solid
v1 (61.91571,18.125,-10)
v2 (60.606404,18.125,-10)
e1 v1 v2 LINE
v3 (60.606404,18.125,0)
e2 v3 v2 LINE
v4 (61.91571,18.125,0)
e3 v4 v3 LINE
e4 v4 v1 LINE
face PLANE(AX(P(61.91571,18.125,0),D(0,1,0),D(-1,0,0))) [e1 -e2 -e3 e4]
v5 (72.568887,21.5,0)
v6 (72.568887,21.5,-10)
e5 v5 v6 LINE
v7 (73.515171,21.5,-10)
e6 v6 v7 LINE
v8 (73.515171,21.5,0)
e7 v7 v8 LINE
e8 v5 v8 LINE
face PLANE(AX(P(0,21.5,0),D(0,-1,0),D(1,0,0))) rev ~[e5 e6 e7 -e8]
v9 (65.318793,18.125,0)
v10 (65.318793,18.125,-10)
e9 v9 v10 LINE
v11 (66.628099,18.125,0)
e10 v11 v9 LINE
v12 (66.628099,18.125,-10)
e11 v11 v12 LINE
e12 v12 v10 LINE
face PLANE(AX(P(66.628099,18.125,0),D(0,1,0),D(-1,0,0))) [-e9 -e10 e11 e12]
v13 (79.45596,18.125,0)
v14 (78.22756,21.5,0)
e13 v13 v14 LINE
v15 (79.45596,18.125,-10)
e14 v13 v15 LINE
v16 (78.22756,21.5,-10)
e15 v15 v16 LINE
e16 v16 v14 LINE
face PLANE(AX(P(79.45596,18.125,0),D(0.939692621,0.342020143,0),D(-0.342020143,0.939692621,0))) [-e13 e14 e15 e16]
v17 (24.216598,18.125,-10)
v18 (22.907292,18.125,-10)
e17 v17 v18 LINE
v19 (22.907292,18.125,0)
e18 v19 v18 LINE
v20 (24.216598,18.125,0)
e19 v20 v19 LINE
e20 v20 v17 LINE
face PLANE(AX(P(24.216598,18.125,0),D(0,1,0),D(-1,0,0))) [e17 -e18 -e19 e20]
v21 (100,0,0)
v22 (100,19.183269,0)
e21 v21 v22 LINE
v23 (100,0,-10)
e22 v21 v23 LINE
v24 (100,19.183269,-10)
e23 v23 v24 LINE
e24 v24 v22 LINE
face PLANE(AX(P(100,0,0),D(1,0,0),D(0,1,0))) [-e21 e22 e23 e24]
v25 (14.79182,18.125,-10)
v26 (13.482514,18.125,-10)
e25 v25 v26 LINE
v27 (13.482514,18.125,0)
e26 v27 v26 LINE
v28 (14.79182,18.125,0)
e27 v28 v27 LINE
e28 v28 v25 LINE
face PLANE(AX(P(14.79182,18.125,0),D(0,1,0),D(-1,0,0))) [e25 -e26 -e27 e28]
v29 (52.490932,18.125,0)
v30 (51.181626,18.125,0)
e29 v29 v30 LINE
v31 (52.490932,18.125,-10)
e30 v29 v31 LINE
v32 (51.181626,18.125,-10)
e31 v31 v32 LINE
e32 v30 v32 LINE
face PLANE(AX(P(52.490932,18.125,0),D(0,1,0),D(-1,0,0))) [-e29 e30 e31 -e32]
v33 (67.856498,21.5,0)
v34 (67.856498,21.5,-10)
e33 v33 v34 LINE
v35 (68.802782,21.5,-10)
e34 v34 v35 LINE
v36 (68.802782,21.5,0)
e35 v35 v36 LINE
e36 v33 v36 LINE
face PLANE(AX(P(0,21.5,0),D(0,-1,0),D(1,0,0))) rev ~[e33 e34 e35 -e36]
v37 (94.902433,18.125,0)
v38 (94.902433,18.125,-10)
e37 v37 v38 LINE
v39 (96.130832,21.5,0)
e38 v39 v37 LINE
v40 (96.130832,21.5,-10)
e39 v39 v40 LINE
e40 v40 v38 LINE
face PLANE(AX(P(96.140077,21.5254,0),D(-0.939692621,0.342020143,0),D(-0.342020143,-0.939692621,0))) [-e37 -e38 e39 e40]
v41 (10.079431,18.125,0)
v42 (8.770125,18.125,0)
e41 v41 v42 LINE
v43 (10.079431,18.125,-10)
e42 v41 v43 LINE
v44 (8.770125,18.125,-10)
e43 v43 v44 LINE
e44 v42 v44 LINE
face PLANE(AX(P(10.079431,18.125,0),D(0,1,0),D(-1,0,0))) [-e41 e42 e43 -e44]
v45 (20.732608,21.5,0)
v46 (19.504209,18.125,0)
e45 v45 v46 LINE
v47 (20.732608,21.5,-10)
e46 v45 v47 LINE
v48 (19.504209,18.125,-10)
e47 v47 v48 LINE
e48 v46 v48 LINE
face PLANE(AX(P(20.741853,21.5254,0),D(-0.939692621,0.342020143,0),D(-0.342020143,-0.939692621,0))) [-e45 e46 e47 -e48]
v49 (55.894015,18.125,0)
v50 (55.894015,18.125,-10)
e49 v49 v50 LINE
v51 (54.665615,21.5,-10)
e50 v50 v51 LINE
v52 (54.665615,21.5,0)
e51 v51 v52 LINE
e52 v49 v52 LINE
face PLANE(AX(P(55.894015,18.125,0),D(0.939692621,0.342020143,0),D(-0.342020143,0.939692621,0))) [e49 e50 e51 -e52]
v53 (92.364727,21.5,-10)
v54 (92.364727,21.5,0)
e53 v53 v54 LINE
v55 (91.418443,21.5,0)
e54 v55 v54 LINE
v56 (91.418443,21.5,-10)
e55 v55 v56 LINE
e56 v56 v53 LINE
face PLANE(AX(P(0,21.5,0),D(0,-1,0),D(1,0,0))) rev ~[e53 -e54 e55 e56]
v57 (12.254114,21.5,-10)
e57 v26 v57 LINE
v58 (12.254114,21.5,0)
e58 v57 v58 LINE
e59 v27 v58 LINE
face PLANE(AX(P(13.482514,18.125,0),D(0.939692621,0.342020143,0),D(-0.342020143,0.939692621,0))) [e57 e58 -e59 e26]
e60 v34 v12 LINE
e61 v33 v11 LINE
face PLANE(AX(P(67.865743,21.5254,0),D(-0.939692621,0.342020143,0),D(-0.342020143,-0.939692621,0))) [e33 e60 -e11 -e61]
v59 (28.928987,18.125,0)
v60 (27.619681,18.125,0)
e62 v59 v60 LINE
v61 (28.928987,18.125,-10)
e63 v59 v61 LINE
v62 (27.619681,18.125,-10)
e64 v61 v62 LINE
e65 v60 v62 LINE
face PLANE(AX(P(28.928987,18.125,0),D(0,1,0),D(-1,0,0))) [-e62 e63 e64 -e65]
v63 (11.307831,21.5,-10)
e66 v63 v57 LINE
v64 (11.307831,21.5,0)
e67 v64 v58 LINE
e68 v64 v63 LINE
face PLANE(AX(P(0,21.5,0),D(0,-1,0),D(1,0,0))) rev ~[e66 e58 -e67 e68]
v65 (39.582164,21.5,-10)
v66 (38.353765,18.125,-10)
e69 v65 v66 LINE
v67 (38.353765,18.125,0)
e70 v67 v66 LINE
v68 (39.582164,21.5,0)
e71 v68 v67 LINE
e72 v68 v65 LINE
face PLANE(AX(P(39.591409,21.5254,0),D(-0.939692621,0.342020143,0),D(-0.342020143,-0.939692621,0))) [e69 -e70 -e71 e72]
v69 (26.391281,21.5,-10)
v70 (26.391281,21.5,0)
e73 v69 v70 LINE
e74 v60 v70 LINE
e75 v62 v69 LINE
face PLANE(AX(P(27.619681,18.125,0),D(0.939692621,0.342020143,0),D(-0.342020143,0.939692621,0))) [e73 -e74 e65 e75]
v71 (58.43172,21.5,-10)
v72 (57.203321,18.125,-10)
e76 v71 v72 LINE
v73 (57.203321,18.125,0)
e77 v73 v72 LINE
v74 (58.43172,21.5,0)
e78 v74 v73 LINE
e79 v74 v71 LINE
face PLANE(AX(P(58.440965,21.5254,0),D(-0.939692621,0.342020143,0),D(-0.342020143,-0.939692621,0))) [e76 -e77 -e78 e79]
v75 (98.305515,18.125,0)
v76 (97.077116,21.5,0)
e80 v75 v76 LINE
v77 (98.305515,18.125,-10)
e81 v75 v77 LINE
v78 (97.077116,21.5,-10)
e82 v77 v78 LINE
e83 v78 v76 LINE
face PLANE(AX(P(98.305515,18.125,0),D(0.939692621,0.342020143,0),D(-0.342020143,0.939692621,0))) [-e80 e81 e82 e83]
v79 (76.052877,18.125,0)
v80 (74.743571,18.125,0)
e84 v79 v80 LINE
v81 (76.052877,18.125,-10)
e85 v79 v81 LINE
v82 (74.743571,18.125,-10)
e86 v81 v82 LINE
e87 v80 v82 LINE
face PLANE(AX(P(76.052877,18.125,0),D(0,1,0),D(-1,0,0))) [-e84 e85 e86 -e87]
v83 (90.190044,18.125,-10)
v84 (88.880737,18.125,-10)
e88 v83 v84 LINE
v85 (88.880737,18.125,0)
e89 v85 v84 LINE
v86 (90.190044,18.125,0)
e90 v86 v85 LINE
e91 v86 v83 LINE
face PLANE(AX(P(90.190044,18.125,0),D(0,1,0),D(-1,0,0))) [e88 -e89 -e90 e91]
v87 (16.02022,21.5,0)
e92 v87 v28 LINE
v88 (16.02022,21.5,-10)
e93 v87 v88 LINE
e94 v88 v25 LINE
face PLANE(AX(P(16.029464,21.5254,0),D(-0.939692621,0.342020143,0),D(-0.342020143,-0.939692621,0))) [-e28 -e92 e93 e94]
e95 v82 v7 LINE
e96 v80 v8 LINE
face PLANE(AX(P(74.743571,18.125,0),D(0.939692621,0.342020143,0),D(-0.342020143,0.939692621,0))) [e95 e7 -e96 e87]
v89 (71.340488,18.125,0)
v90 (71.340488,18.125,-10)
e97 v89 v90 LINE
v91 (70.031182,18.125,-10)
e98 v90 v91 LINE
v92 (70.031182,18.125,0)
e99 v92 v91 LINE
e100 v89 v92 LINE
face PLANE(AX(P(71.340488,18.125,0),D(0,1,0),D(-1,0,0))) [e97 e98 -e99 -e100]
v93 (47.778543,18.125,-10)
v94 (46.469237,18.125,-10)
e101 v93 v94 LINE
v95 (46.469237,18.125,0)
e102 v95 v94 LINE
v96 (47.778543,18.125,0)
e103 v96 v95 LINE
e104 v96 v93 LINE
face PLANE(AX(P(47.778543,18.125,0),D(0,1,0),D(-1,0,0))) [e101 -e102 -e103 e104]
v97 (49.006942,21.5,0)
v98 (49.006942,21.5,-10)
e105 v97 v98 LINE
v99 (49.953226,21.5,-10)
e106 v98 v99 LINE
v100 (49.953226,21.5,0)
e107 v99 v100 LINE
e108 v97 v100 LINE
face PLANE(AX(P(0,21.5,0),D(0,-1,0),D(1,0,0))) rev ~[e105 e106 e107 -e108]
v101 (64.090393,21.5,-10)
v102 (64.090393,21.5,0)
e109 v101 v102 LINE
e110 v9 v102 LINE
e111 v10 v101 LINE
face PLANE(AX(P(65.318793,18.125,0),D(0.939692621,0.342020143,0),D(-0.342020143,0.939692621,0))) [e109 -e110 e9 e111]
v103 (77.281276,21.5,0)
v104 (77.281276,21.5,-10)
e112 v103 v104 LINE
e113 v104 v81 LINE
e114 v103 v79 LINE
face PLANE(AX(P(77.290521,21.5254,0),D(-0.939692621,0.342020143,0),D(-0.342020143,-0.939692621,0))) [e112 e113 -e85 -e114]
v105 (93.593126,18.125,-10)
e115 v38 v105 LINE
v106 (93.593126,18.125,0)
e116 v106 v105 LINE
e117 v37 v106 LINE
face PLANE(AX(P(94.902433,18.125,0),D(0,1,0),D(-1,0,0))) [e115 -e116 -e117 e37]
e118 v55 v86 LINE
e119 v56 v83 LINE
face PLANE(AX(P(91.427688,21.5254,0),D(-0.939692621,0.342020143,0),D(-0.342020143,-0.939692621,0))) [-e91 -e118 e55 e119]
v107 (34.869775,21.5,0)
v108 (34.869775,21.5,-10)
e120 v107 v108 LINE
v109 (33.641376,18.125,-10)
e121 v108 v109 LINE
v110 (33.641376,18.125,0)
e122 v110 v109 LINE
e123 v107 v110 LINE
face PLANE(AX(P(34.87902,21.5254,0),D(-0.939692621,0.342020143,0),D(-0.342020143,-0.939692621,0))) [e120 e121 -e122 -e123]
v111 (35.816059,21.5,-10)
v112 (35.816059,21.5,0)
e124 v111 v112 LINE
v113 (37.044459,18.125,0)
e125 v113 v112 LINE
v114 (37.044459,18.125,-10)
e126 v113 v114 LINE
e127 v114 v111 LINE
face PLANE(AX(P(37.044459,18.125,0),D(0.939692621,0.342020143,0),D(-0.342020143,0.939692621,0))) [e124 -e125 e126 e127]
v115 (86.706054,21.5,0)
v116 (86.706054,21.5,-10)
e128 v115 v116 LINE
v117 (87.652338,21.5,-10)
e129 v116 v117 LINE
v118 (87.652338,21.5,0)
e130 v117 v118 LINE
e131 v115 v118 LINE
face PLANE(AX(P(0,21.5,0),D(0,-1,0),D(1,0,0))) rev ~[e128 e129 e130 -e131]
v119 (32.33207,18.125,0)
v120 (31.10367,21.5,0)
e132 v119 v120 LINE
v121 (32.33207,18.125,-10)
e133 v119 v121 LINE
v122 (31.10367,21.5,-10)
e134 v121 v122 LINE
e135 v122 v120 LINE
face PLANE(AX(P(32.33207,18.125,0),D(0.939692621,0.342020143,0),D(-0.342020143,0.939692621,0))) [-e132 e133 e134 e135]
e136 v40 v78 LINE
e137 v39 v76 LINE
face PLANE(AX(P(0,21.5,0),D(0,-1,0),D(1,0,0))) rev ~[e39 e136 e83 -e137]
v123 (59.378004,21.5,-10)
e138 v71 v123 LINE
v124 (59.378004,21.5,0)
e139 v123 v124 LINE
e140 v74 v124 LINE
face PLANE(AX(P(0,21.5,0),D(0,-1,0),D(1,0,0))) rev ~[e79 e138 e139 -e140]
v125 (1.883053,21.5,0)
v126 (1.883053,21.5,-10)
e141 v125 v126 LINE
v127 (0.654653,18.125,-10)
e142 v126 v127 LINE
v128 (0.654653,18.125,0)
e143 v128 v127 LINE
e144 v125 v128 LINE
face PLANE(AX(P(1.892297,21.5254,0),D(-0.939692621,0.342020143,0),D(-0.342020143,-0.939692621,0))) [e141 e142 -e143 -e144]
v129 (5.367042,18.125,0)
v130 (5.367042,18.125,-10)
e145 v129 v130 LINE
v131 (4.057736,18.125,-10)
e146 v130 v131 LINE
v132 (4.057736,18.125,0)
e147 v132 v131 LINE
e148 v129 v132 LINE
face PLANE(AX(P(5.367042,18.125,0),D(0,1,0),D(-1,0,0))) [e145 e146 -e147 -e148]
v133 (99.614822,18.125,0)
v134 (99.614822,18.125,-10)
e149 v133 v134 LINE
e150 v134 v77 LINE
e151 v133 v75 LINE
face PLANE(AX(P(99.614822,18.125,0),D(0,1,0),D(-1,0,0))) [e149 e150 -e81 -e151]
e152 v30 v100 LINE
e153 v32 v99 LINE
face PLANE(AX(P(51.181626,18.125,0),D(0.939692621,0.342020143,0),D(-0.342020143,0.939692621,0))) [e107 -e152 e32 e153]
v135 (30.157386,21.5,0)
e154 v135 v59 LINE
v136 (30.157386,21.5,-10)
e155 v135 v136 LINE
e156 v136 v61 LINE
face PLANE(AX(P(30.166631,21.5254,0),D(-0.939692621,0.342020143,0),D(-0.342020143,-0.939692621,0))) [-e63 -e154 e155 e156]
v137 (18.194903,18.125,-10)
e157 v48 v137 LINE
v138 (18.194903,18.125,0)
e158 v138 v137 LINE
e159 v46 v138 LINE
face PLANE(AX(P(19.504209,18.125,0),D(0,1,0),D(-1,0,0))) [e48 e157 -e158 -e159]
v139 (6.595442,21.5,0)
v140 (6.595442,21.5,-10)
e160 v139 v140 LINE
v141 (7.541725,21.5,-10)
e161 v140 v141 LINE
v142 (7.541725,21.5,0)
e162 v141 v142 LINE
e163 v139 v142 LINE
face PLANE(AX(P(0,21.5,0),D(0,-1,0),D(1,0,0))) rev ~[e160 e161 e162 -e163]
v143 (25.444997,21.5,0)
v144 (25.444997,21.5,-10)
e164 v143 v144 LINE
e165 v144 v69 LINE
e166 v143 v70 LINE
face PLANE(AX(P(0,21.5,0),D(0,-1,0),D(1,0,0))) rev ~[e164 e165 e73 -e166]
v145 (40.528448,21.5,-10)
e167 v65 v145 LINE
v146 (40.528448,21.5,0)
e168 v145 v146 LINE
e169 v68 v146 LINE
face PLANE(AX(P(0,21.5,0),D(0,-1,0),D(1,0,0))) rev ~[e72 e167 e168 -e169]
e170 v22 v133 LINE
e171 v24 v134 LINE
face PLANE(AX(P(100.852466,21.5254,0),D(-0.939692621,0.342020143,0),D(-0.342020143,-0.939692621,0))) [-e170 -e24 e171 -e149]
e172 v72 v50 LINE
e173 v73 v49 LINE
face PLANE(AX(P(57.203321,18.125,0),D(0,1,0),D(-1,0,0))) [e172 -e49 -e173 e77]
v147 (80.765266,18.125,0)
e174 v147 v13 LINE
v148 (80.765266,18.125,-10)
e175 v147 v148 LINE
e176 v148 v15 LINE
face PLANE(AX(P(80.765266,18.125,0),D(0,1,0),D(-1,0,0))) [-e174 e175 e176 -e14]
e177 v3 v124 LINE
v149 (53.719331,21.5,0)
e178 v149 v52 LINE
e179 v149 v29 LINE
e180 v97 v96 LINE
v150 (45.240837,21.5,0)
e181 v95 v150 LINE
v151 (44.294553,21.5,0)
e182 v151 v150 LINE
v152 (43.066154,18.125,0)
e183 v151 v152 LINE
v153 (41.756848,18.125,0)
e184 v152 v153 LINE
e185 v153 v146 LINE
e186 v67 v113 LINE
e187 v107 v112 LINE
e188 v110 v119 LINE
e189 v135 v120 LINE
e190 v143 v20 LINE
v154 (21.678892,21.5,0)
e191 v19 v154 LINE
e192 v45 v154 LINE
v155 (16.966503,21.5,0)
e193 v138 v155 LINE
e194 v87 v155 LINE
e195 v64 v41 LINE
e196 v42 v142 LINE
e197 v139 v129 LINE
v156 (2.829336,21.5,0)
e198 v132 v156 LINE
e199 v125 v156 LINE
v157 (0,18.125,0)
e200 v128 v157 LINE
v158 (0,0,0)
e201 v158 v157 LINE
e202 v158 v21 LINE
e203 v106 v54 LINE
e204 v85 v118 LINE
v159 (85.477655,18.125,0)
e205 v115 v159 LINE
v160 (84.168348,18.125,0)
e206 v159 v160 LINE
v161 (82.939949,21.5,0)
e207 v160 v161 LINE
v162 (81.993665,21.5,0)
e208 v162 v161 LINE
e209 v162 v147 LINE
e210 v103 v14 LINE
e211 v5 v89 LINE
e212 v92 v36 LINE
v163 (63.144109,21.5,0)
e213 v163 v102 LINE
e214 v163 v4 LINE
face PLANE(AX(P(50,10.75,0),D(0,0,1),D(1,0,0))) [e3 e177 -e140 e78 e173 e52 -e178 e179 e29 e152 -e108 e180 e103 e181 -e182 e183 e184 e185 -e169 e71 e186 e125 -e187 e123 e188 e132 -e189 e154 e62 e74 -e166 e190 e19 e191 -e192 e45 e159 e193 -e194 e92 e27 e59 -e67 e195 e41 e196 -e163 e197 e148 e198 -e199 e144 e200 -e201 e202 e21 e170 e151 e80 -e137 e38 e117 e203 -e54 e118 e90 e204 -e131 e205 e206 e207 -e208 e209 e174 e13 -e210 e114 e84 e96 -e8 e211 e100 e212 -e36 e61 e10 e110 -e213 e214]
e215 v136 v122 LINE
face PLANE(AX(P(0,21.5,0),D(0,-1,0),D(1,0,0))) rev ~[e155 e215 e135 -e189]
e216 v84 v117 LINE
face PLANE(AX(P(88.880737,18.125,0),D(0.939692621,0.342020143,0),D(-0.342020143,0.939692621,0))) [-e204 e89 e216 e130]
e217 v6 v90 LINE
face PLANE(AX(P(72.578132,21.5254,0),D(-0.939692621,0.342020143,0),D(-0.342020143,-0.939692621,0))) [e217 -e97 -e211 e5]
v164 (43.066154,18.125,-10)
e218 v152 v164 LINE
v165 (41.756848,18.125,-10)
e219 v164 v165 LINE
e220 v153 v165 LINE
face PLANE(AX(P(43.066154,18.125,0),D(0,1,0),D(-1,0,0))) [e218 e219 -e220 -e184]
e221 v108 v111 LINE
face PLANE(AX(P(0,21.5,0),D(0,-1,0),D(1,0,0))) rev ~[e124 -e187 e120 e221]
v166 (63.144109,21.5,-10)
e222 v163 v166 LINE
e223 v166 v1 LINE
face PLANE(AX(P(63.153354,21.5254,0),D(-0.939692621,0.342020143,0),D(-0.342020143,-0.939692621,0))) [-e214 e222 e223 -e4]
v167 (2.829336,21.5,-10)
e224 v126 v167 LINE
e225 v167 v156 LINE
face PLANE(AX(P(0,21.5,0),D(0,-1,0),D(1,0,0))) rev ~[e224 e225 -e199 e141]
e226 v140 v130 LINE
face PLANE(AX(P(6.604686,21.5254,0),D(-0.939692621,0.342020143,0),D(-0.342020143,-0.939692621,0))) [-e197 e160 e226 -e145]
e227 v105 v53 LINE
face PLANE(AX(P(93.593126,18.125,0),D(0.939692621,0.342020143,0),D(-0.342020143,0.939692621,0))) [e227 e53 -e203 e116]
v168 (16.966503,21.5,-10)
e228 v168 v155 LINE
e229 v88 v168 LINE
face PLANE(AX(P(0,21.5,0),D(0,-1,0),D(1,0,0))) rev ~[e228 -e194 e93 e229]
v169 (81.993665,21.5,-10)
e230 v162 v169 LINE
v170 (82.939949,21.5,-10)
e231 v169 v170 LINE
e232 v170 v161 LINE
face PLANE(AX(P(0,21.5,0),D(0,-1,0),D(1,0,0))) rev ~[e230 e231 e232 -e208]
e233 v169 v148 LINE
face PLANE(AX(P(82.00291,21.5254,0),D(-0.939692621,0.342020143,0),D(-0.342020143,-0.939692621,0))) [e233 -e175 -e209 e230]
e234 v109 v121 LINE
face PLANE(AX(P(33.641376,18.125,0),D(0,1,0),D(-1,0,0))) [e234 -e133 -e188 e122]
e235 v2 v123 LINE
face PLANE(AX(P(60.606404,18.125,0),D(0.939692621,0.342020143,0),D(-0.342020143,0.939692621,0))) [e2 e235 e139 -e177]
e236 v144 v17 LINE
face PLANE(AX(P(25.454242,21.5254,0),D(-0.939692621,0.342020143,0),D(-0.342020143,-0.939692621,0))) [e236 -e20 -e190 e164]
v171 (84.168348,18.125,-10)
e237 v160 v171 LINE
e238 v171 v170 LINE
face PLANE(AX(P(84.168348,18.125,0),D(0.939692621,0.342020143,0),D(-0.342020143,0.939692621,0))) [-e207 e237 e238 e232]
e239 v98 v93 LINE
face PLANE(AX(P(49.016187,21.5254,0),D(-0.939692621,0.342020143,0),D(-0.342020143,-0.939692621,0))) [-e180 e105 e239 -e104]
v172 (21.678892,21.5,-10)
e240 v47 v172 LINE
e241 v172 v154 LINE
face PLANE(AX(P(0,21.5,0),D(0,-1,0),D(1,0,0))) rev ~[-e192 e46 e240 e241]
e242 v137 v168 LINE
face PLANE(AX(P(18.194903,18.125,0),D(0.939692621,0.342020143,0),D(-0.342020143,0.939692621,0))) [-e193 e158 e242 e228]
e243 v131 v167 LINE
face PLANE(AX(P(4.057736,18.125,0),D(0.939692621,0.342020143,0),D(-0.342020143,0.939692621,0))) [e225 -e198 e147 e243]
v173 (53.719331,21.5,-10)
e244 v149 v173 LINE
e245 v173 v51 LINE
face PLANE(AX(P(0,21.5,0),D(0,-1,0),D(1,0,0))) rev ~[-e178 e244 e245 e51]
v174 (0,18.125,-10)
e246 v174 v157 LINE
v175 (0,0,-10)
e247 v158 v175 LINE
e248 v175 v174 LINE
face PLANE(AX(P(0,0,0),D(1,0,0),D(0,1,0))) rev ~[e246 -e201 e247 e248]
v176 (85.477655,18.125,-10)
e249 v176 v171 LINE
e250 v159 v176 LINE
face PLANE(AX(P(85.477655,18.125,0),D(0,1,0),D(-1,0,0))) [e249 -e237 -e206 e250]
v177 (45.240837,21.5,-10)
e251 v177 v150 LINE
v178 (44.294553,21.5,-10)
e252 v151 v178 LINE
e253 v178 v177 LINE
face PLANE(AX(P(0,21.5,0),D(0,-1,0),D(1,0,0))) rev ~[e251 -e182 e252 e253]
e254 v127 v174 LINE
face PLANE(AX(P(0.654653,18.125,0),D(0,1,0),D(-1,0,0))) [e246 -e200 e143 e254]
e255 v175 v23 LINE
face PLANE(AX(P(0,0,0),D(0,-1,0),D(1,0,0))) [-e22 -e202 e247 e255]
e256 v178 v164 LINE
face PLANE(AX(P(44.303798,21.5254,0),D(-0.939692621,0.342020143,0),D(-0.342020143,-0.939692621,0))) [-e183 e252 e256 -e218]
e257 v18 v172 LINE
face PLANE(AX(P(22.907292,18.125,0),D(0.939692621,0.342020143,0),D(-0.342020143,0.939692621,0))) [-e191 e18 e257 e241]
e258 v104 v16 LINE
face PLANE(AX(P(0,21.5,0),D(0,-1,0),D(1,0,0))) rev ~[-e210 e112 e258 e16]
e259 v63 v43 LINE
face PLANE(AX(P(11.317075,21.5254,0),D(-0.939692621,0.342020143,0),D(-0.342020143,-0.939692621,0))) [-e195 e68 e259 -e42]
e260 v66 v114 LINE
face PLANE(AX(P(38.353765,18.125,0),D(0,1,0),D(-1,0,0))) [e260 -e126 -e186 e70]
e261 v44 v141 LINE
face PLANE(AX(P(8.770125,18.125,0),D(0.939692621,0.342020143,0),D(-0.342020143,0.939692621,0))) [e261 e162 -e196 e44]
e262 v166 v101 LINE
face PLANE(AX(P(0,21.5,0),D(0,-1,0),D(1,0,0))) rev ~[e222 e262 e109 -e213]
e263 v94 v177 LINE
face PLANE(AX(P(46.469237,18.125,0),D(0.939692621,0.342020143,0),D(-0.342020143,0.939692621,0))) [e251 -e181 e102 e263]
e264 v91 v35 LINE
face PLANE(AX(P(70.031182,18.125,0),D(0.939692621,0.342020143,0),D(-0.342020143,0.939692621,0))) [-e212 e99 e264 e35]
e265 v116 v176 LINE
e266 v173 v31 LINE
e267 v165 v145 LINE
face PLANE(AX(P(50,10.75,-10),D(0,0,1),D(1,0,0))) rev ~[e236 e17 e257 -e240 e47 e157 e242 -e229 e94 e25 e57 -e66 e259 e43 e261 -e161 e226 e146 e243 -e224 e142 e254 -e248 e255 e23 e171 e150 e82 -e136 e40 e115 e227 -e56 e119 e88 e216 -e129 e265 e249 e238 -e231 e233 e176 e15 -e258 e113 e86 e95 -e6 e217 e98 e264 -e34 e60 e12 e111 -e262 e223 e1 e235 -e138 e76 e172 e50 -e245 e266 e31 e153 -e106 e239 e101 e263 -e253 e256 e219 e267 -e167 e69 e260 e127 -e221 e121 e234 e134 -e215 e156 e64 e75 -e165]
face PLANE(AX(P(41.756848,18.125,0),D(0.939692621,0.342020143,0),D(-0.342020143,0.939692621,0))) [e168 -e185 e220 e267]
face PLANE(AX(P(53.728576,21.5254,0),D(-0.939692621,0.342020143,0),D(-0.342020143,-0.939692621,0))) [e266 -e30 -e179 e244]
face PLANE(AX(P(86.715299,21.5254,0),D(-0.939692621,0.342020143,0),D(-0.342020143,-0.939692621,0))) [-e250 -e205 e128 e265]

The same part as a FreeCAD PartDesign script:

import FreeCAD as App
import Part
import Sketcher

V = App.Vector
Q = App.Units.Quantity


def add_polygon(sketch, points):
    """Adds a closed chain of lines whose ends are joined by coincident constraints."""
    first, n = sketch.GeometryCount, len(points)
    for a, b in zip(points, points[1:] + points[:1]):
        sketch.addGeometry(Part.LineSegment(App.Vector(*a, 0), App.Vector(*b, 0)), False)
    for i in range(n):
        sketch.addConstraint(Sketcher.Constraint("Coincident", first + i, 2, first + (i + 1) % n, 1))

doc = App.newDocument("Part")
body = doc.addObject("PartDesign::Body", "Body")

sketch1 = body.newObject("Sketcher::SketchObject", "Sketch")
sketch1.AttachmentSupport = (doc.getObject("XY_Plane"), [""])
sketch1.MapMode = "FlatFace"
add_polygon(sketch1, [(0, 22), (0, 0), (100, 0), (100, 22)])
sketch1.addConstraint(Sketcher.Constraint("Vertical", 0))
sketch1.addConstraint(Sketcher.Constraint("Horizontal", 1))
sketch1.addConstraint(Sketcher.Constraint("Vertical", 2))
sketch1.addConstraint(Sketcher.Constraint("Horizontal", 3))
sketch1.addConstraint(Sketcher.Constraint("Coincident", 0, 2, -1, 1))
sketch1.addConstraint(Sketcher.Constraint("DistanceX", 1, 1, 1, 2, 100.0))
sketch1.addConstraint(Sketcher.Constraint("DistanceY", 0, 2, 0, 1, 21.5))
pad1 = body.newObject("PartDesign::Pad", "Pad")
pad1.Profile = sketch1
pad1.Length = 10
pad1.Reversed = True

sketch2 = body.newObject("Sketcher::SketchObject", "Sketch001")
sketch2.AttachmentSupport = (doc.getObject("XY_Plane"), [""])
sketch2.MapMode = "FlatFace"
add_polygon(sketch2, [(-0.7, 18.1), (0.7, 18.1), (1.9, 21.5), (-1.9, 21.5)])
sketch2.addConstraint(Sketcher.Constraint("Horizontal", 0))
sketch2.addConstraint(Sketcher.Constraint("Horizontal", 2))
sketch2.addConstraint(Sketcher.Constraint("Equal", 1, 3))
sketch2.addConstraint(Sketcher.Constraint("Angle", 1, Q("70 deg")))
sketch2.addConstraint(Sketcher.Constraint("DistanceY", -1, 1, 0, 2, 18.125))
sketch2.addConstraint(Sketcher.Constraint("DistanceY", -1, 1, 1, 2, 21.5254))
sketch2.addConstraint(Sketcher.Constraint("DistanceX", 0, 1, 0, 2, 1.309306))
sketch2.addConstraint(Sketcher.Constraint("DistanceX", -1, 1, 0, 2, 0.654653))
pocket1 = body.newObject("PartDesign::Pocket", "Pocket")
pocket1.Profile = sketch2
pocket1.Type = "ThroughAll"
doc.recompute()

linearpattern = body.newObject("PartDesign::LinearPattern", "LinearPattern")
linearpattern.Originals = [pocket1]
linearpattern.Direction = (doc.getObject("X_Axis"), [""])
linearpattern.Mode = "offset"
linearpattern.Offset = 4.712389
linearpattern.Occurrences = 22
body.Tip = linearpattern

doc.recompute()
